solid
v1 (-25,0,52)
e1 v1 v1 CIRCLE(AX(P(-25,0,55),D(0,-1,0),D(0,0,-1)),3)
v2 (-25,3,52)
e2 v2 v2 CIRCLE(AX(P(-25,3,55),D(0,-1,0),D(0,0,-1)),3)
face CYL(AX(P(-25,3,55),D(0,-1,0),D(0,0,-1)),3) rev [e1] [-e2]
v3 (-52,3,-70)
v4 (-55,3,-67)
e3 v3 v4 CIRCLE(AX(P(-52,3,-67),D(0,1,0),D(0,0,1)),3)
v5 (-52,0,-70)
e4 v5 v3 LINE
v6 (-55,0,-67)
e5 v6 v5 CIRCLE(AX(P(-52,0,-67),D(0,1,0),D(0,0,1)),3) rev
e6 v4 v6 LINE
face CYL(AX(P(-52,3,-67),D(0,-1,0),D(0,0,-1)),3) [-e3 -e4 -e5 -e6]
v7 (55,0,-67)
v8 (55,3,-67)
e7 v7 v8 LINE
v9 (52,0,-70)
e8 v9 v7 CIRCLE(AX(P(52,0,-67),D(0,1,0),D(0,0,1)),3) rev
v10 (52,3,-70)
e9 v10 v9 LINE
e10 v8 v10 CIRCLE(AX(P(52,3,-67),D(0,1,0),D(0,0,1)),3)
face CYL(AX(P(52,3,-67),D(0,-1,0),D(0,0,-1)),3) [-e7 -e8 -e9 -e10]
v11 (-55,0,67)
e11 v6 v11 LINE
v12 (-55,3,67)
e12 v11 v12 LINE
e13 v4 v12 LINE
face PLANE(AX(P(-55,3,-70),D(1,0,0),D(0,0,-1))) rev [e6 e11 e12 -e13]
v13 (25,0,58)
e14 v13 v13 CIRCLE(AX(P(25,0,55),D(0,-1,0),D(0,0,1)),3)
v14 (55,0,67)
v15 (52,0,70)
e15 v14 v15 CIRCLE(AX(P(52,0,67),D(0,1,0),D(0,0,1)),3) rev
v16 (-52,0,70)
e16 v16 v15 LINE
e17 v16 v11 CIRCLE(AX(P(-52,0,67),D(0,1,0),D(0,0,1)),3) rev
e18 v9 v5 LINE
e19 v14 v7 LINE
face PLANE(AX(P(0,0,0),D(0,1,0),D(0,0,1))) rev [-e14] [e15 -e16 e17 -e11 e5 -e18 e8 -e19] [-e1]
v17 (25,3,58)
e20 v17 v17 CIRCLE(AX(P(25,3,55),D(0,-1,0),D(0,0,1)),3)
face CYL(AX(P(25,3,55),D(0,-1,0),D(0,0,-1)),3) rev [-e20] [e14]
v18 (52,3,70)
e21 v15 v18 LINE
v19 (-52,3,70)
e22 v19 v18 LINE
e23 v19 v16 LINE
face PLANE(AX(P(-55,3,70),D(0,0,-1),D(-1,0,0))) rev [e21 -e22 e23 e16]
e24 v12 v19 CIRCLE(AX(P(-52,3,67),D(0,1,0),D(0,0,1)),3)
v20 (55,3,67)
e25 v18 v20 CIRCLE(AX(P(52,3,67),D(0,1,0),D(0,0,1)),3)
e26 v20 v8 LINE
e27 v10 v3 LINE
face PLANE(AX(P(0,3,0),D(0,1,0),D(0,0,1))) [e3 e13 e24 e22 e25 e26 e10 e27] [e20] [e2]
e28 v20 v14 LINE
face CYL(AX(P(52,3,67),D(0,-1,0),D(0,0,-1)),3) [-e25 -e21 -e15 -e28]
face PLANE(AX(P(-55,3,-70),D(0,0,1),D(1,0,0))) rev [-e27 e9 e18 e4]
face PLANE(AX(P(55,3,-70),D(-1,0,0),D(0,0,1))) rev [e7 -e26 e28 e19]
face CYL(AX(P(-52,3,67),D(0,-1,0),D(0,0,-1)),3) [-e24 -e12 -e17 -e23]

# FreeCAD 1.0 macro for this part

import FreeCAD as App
import Part
import Sketcher

V = App.Vector
Q = App.Units.Quantity


def edges_at(feature, points):
    """Names of the edges that pass closest to the given points."""
    edges = feature.Shape.Edges
    near = lambda p: min(range(len(edges)), key=lambda i: edges[i].distToShape(Part.Vertex(*p))[0])
    return sorted({f"Edge{near(p) + 1}" for p in points})

doc = App.newDocument("Part")
body = doc.addObject("PartDesign::Body", "Body")

sketch1 = doc.addObject("Sketcher::SketchObject", "Sketch")
body.addObject(sketch1)
sketch1.AttachmentSupport = (doc.XZ_Plane, [""])
sketch1.MapMode = "FlatFace"
sketch1.addGeometry(Part.LineSegment(V(-55, -70, 0), V(-55, 70, 0)), False)
sketch1.addGeometry(Part.LineSegment(V(-55, 70, 0), V(55, 70, 0)), False)
sketch1.addGeometry(Part.LineSegment(V(55, 70, 0), V(55, -70, 0)), False)
sketch1.addGeometry(Part.LineSegment(V(55, -70, 0), V(-55, -70, 0)), False)
sketch1.addConstraint(Sketcher.Constraint("Coincident", 0, 2, 1, 1))
sketch1.addConstraint(Sketcher.Constraint("Coincident", 1, 2, 2, 1))
sketch1.addConstraint(Sketcher.Constraint("Coincident", 2, 2, 3, 1))
sketch1.addConstraint(Sketcher.Constraint("Coincident", 3, 2, 0, 1))
sketch1.addConstraint(Sketcher.Constraint("Vertical", 0))
sketch1.addConstraint(Sketcher.Constraint("Horizontal", 1))
sketch1.addConstraint(Sketcher.Constraint("Vertical", 2))
sketch1.addConstraint(Sketcher.Constraint("Horizontal", 3))
sketch1.addConstraint(Sketcher.Constraint("Symmetric", 0, 2, 2, 2, -1, 1))
sketch1.addConstraint(Sketcher.Constraint("DistanceX", 1, 1, 1, 2, Q("110 mm")))
sketch1.addConstraint(Sketcher.Constraint("DistanceY", 0, 1, 0, 2, Q("140 mm")))
pad1 = doc.addObject("PartDesign::Pad", "Pad")
body.addObject(pad1)
pad1.Profile = sketch1
pad1.Length = 3
pad1.Reversed = True

sketch2 = doc.addObject("Sketcher::SketchObject", "Sketch001")
body.addObject(sketch2)
sketch2.AttachmentSupport = (doc.XZ_Plane, [""])
sketch2.MapMode = "FlatFace"
sketch2.addGeometry(Part.Circle(V(-25, 55, 0), V(0, 0, 1), 3), False)
sketch2.addGeometry(Part.Circle(V(25, 55, 0), V(0, 0, 1), 3), False)
sketch2.addConstraint(Sketcher.Constraint("Equal", 0, 1))
sketch2.addConstraint(Sketcher.Constraint("Symmetric", 0, 3, 1, 3, -2))
sketch2.addConstraint(Sketcher.Constraint("Diameter", 0, Q("6 mm")))
sketch2.addConstraint(Sketcher.Constraint("DistanceX", 0, 3, -1, 1, Q("25 mm")))
sketch2.addConstraint(Sketcher.Constraint("DistanceY", -1, 1, 0, 3, Q("55 mm")))
pocket1 = doc.addObject("PartDesign::Pocket", "Pocket")
body.addObject(pocket1)
pocket1.Profile = sketch2
pocket1.Length = 3
doc.recompute()

fillet = doc.addObject("PartDesign::Fillet", "Fillet")
body.addObject(fillet)
fillet.Base = (pocket1, edges_at(pocket1, [
    (55, 1.5, 70),
    (-55, 1.5, 70),
    (-55, 1.5, -70),
    (55, 1.5, -70),
]))
fillet.Radius = 3

doc.recompute()
